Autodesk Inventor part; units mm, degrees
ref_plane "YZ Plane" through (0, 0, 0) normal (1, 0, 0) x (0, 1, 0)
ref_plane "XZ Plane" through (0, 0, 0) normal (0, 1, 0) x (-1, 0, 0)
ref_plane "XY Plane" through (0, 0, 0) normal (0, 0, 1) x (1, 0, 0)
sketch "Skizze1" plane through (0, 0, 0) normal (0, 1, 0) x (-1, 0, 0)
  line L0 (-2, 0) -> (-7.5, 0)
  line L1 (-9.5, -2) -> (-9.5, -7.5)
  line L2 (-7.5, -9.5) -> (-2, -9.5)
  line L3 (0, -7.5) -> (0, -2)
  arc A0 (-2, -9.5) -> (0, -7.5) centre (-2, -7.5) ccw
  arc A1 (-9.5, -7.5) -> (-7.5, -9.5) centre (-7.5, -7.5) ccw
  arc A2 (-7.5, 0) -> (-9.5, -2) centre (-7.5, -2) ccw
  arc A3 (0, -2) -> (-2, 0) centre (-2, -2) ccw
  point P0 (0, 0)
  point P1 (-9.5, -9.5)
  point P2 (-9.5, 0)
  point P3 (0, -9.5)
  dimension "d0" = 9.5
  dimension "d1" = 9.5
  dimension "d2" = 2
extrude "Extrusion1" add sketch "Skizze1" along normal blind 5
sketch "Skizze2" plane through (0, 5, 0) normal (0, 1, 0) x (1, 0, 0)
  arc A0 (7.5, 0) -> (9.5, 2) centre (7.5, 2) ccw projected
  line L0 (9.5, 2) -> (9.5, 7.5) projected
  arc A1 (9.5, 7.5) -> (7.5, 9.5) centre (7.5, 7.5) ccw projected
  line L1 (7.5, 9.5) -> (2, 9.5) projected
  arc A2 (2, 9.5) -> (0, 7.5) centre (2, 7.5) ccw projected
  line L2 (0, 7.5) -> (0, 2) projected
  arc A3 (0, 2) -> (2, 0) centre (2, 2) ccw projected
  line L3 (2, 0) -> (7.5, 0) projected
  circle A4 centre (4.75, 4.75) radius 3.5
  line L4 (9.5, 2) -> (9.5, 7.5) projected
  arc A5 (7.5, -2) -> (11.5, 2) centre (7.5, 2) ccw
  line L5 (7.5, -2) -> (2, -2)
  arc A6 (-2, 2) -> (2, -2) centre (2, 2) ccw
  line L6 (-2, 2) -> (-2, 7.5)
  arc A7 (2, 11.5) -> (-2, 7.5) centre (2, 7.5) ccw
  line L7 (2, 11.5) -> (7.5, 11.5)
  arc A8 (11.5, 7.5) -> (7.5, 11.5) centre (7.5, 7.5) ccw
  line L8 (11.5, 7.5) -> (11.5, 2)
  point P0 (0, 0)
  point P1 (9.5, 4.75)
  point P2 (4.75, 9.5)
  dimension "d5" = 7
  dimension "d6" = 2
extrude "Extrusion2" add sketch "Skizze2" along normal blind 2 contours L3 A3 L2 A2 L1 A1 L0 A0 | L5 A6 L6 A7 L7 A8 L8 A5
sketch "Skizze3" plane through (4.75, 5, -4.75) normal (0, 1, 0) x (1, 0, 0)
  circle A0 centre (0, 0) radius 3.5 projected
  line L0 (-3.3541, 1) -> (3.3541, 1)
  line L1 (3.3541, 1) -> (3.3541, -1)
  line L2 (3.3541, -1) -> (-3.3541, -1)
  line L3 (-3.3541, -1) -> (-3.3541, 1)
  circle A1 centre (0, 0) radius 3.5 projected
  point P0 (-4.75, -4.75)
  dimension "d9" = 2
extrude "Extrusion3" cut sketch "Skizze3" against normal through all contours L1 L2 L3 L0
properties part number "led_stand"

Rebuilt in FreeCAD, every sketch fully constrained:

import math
import FreeCAD as App
import Part
import Sketcher
Q = App.Units.Quantity

doc = App.newDocument("Part")
params = doc.addObject("Spreadsheet::Sheet", "Params")
for row, (alias, value) in enumerate([
    ("sketch1_radius", "2 mm"),
    ("pad1_length", "5 mm"),
    ("sketch2_diameter", "7 mm"),
    ("sketch2_width", "5.5 mm"),
    ("pad2_length", "2 mm"),
    ("sketch3_height", "2 mm"),
], start=1):
    params.set(f"A{row}", alias)
    params.set(f"B{row}", "=" + value)
    params.setAlias(f"B{row}", alias)

body = doc.addObject("PartDesign::Body", "Body")

# Sketch on XZ plane
sketch1 = body.newObject("Sketcher::SketchObject", "Sketch")
sketch1.AttachmentSupport = (doc.getObject("XZ_Plane"), [""])
sketch1.MapMode = "FlatFace"
sketch1.addGeometry([
    Part.ArcOfCircle(Part.Circle(App.Vector(2, -2, 0), App.Vector(0, 0, 1), 2), math.radians(90), math.radians(180)),  # 0
    Part.LineSegment(App.Vector(2, 0, 0), App.Vector(7.5, 0, 0)),  # 1
    Part.ArcOfCircle(Part.Circle(App.Vector(7.5, -2, 0), App.Vector(0, 0, 1), 2), math.radians(0), math.radians(90)),  # 2
    Part.LineSegment(App.Vector(9.5, -2, 0), App.Vector(9.5, -7.5, 0)),  # 3
    Part.ArcOfCircle(Part.Circle(App.Vector(7.5, -7.5, 0), App.Vector(0, 0, 1), 2), math.radians(-90), math.radians(0)),  # 4
    Part.LineSegment(App.Vector(7.5, -9.5, 0), App.Vector(2, -9.5, 0)),  # 5
    Part.ArcOfCircle(Part.Circle(App.Vector(2, -7.5, 0), App.Vector(0, 0, 1), 2), math.radians(180), math.radians(270)),  # 6
    Part.LineSegment(App.Vector(0, -7.5, 0), App.Vector(0, -2, 0)),  # 7
], False)
sketch1.addConstraint([
    Sketcher.Constraint("Tangent", 0, 1, 1, 1),
    Sketcher.Constraint("Tangent", 1, 2, 2, 2),
    Sketcher.Constraint("Tangent", 2, 1, 3, 1),
    Sketcher.Constraint("Tangent", 3, 2, 4, 2),
    Sketcher.Constraint("Tangent", 4, 1, 5, 1),
    Sketcher.Constraint("Tangent", 5, 2, 6, 2),
    Sketcher.Constraint("Tangent", 6, 1, 7, 1),
    Sketcher.Constraint("Tangent", 7, 2, 0, 2),
    Sketcher.Constraint("Horizontal", 1),
    Sketcher.Constraint("Vertical", 3),
    Sketcher.Constraint("Horizontal", 5),
    Sketcher.Constraint("Vertical", 7),
    Sketcher.Constraint("Equal", 0, 2),
    Sketcher.Constraint("Equal", 2, 4),
    Sketcher.Constraint("Equal", 4, 6),
    Sketcher.Constraint("PointOnObject", 0, 1, -1),
    Sketcher.Constraint("PointOnObject", 6, 1, -2),
    Sketcher.Constraint("Equal", 5, 3),
    Sketcher.Constraint("Radius", 0, Q("2 mm")),
    Sketcher.Constraint("DistanceX", -1, 1, 2, 1, Q("9.5 mm")),
])
sketch1.setExpression("Constraints[18]", "Params.sketch1_radius")
pad1 = body.newObject("PartDesign::Pad", "Pad")
pad1.Profile = sketch1
pad1.setExpression("Length", "Params.pad1_length")
pad1.Reversed = True

# Sketch on XZ plane
sketch2 = body.newObject("Sketcher::SketchObject", "Sketch001")
sketch2.AttachmentSupport = (doc.getObject("XZ_Plane"), [""])
sketch2.MapMode = "FlatFace"
sketch2.AttachmentOffset = App.Placement(App.Vector(0, 0, -5), App.Rotation())
sketch2.addGeometry([
    Part.LineSegment(App.Vector(2, 2, 0), App.Vector(7.5, 2, 0)),  # 0
    Part.ArcOfCircle(Part.Circle(App.Vector(7.5, -2, 0), App.Vector(0, 0, 1), 4), math.radians(0), math.radians(90)),  # 1
    Part.LineSegment(App.Vector(11.5, -2, 0), App.Vector(11.5, -7.5, 0)),  # 2
    Part.ArcOfCircle(Part.Circle(App.Vector(7.5, -7.5, 0), App.Vector(0, 0, 1), 4), math.radians(-90), math.radians(0)),  # 3
    Part.LineSegment(App.Vector(7.5, -11.5, 0), App.Vector(2, -11.5, 0)),  # 4
    Part.ArcOfCircle(Part.Circle(App.Vector(2, -7.5, 0), App.Vector(0, 0, 1), 4), math.radians(180), math.radians(270)),  # 5
    Part.LineSegment(App.Vector(-2, -7.5, 0), App.Vector(-2, -2, 0)),  # 6
    Part.ArcOfCircle(Part.Circle(App.Vector(2, -2, 0), App.Vector(0, 0, 1), 4), math.radians(90), math.radians(180)),  # 7
    Part.Circle(App.Vector(4.8, -4.8, 0), App.Vector(0, 0, 1), 3.5),  # 8
], False)
sketch2.addConstraint([
    Sketcher.Constraint("Tangent", 0, 2, 1, 2),
    Sketcher.Constraint("Tangent", 1, 1, 2, 1),
    Sketcher.Constraint("Tangent", 2, 2, 3, 2),
    Sketcher.Constraint("Tangent", 3, 1, 4, 1),
    Sketcher.Constraint("Tangent", 4, 2, 5, 2),
    Sketcher.Constraint("Tangent", 5, 1, 6, 1),
    Sketcher.Constraint("Tangent", 6, 2, 7, 2),
    Sketcher.Constraint("Tangent", 7, 1, 0, 1),
    Sketcher.Constraint("Horizontal", 0),
    Sketcher.Constraint("Vertical", 2),
    Sketcher.Constraint("Horizontal", 4),
    Sketcher.Constraint("Vertical", 6),
    Sketcher.Constraint("Equal", 1, 3),
    Sketcher.Constraint("Equal", 3, 5),
    Sketcher.Constraint("Equal", 5, 7),
    Sketcher.Constraint("Symmetric", 6, 2, 7, 1, -1, 1),
    Sketcher.Constraint("Equal", 4, 2),
    Sketcher.Constraint("Diameter", 8, Q("7 mm")),
    Sketcher.Constraint("DistanceY", 1, 3, -1, 1, Q("2 mm")),
    Sketcher.Constraint("DistanceX", 0, 1, 0, 2, Q("5.5 mm")),
    Sketcher.Constraint("DistanceX", -1, 1, 8, 3, Q("4.75 mm")),
    Sketcher.Constraint("DistanceY", 8, 3, -1, 1, Q("4.75 mm")),
])
sketch2.setExpression("Constraints[17]", "Params.sketch2_diameter")
sketch2.setExpression("Constraints[19]", "Params.sketch2_width")
pad2 = body.newObject("PartDesign::Pad", "Pad001")
pad2.Profile = sketch2
pad2.setExpression("Length", "Params.pad2_length")
pad2.Reversed = True

# Sketch on XZ plane
sketch3 = body.newObject("Sketcher::SketchObject", "Sketch002")
sketch3.AttachmentSupport = (doc.getObject("XZ_Plane"), [""])
sketch3.MapMode = "FlatFace"
sketch3.AttachmentOffset = App.Placement(App.Vector(0, 0, -5), App.Rotation())
sketch3.addGeometry([
    Part.LineSegment(App.Vector(8.1, -3.8, 0), App.Vector(8.1, -5.8, 0)),
    Part.LineSegment(App.Vector(8.1, -5.8, 0), App.Vector(1.4, -5.8, 0)),
    Part.LineSegment(App.Vector(1.4, -5.8, 0), App.Vector(1.4, -3.8, 0)),
    Part.LineSegment(App.Vector(1.4, -3.8, 0), App.Vector(8.1, -3.8, 0)),
], False)
sketch3.addConstraint([
    Sketcher.Constraint("Coincident", 0, 2, 1, 1),
    Sketcher.Constraint("Coincident", 1, 2, 2, 1),
    Sketcher.Constraint("Coincident", 2, 2, 3, 1),
    Sketcher.Constraint("Coincident", 3, 2, 0, 1),
    Sketcher.Constraint("Vertical", 0),
    Sketcher.Constraint("Horizontal", 1),
    Sketcher.Constraint("Vertical", 2),
    Sketcher.Constraint("Horizontal", 3),
    Sketcher.Constraint("DistanceY", 0, 2, 0, 1, Q("2 mm")),
    Sketcher.Constraint("DistanceY", 0, 2, -1, 1, Q("5.75 mm")),
    Sketcher.Constraint("DistanceX", 1, 2, 1, 1, Q("6.7082 mm")),
    Sketcher.Constraint("DistanceX", -1, 1, 0, 2, Q("8.104 mm")),
])
sketch3.setExpression("Constraints[8]", "Params.sketch3_height")
pocket1 = body.newObject("PartDesign::Pocket", "Pocket")
pocket1.Profile = sketch3
pocket1.Type = "ThroughAll"
pocket1.Reversed = True

doc.recompute()
